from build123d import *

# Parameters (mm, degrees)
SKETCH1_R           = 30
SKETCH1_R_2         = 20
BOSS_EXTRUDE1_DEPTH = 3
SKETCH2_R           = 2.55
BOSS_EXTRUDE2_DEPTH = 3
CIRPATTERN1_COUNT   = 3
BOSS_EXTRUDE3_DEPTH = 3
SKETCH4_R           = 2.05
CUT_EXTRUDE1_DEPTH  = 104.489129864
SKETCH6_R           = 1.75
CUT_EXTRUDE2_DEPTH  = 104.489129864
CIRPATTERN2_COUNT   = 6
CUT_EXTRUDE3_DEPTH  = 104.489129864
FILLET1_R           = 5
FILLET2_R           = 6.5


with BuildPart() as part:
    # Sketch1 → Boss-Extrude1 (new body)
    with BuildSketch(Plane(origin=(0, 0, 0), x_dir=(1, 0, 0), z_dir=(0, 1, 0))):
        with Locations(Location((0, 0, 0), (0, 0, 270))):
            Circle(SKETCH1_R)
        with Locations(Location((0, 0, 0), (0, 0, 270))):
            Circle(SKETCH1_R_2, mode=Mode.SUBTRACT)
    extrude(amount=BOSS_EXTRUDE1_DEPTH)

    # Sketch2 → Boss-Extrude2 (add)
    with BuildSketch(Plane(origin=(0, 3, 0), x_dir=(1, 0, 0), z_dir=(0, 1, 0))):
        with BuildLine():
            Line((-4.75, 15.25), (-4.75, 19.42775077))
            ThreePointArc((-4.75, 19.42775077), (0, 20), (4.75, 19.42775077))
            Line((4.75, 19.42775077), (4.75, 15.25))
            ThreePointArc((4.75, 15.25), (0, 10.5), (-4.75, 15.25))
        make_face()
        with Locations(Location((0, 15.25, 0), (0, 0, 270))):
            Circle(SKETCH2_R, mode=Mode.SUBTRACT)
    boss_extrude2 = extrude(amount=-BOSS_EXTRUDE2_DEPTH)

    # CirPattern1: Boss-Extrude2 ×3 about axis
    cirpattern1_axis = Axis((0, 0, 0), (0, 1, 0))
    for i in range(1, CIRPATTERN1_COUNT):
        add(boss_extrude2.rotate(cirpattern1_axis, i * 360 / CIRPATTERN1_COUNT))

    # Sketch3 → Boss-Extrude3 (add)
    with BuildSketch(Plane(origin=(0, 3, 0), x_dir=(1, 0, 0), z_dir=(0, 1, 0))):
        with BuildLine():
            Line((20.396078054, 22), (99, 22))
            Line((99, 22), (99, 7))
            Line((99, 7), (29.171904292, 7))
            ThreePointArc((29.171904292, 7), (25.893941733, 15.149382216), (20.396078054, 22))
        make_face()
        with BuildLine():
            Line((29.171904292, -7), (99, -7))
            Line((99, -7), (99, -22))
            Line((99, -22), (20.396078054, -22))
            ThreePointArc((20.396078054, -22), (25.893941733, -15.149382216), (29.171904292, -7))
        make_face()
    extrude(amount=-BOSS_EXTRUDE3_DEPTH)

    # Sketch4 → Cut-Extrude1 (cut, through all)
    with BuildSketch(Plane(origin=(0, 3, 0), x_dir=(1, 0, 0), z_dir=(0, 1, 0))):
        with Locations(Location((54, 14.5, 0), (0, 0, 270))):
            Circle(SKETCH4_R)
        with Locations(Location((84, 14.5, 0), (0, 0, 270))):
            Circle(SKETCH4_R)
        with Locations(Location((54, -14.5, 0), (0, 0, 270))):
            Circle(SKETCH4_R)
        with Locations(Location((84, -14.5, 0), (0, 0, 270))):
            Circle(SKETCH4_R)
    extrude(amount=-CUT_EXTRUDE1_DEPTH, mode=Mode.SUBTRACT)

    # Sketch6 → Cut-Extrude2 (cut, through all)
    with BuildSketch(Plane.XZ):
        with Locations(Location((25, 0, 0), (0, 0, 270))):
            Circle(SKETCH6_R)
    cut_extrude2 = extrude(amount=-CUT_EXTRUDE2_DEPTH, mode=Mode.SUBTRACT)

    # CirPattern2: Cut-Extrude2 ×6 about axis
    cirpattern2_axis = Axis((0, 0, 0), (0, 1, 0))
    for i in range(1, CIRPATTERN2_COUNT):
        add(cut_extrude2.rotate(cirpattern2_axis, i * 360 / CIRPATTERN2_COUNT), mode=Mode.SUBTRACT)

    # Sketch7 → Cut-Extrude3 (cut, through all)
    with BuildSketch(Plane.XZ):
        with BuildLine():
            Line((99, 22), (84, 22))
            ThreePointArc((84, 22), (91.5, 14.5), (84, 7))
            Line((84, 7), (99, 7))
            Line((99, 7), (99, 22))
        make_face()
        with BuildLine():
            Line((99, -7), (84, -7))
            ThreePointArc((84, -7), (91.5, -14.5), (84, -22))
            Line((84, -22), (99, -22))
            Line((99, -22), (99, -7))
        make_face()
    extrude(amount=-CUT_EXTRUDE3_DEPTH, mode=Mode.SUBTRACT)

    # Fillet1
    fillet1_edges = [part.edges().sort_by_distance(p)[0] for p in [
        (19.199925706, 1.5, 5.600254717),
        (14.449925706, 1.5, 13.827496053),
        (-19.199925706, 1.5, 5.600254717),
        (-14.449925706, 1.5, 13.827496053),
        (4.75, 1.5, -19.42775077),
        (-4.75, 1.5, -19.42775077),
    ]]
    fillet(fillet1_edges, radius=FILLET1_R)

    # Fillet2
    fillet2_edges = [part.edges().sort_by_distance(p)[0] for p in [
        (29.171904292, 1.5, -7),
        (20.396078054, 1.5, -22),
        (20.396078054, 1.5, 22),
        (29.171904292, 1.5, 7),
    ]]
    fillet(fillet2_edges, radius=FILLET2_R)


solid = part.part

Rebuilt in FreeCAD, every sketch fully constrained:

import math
import FreeCAD as App
import Part
import Sketcher
Q = App.Units.Quantity


def edges_at(feature, points):
    """Names of the edges that pass closest to the given points."""
    edges = feature.Shape.Edges
    near = lambda p: min(range(len(edges)), key=lambda i: edges[i].distToShape(Part.Vertex(*p))[0])
    return sorted({f"Edge{near(p) + 1}" for p in points})

doc = App.newDocument("Part")
body = doc.addObject("PartDesign::Body", "Body")

sketch1 = body.newObject("Sketcher::SketchObject", "Sketch")
sketch1.AttachmentSupport = (doc.getObject("XZ_Plane"), [""])
sketch1.MapMode = "FlatFace"
sketch1.addGeometry([
    Part.Circle(App.Vector(0, 0, 0), App.Vector(0, 0, 1), 30),
    Part.Circle(App.Vector(0, 0, 0), App.Vector(0, 0, 1), 20),
], False)
sketch1.addConstraint([
    Sketcher.Constraint("Coincident", 0, 3, -1, 1),
    Sketcher.Constraint("Coincident", 1, 3, -1, 1),
    Sketcher.Constraint("Diameter", 0, Q("60 mm")),
    Sketcher.Constraint("Diameter", 1, Q("40 mm")),
])
pad1 = body.newObject("PartDesign::Pad", "Pad")
pad1.Profile = sketch1
pad1.Length = 3
pad1.Reversed = True

sketch2 = body.newObject("Sketcher::SketchObject", "Sketch001")
sketch2.AttachmentSupport = (doc.getObject("XZ_Plane"), [""])
sketch2.MapMode = "FlatFace"
sketch2.AttachmentOffset = App.Placement(App.Vector(0, 0, -3), App.Rotation())
sketch2.addGeometry([
    Part.LineSegment(App.Vector(-4.8, -19.4, 0), App.Vector(-4.8, -15.2, 0)),
    Part.ArcOfCircle(Part.Circle(App.Vector(0, -15.2, 0), App.Vector(0, 0, 1), 4.8), math.radians(0), math.radians(180)),
    Part.LineSegment(App.Vector(4.8, -15.2, 0), App.Vector(4.8, -19.4, 0)),
    Part.ArcOfCircle(Part.Circle(App.Vector(0, 0, 0), App.Vector(0, 0, 1), 20), math.radians(-104), math.radians(-76)),
    Part.Circle(App.Vector(0, -15.2, 0), App.Vector(0, 0, 1), 2.5),
], False)
sketch2.addConstraint([
    Sketcher.Constraint("Tangent", 0, 2, 1, 2),
    Sketcher.Constraint("Tangent", 1, 1, 2, 1),
    Sketcher.Constraint("Coincident", 2, 2, 3, 2),
    Sketcher.Constraint("Coincident", 3, 1, 0, 1),
    Sketcher.Constraint("Vertical", 0),
    Sketcher.Constraint("Vertical", 2),
    Sketcher.Constraint("Coincident", 3, 3, -1, 1),
    Sketcher.Constraint("Coincident", 4, 3, 1, 3),
    Sketcher.Constraint("PointOnObject", 1, 3, -2),
    Sketcher.Constraint("Radius", 3, Q("20 mm")),
    Sketcher.Constraint("Diameter", 4, Q("5.1 mm")),
    Sketcher.Constraint("Radius", 1, Q("4.75 mm")),
    Sketcher.Constraint("DistanceY", 1, 3, -1, 1, Q("15.25 mm")),
])
pad2 = body.newObject("PartDesign::Pad", "Pad001")
pad2.Profile = sketch2
pad2.Length = 3
doc.recompute()

polarpattern = body.newObject("PartDesign::PolarPattern", "PolarPattern")
polarpattern.Originals = [pad2]
polarpattern.Axis = (doc.getObject("Y_Axis"), [""])
polarpattern.Angle = 360
polarpattern.Occurrences = 3
body.Tip = polarpattern

sketch3 = body.newObject("Sketcher::SketchObject", "Sketch002")
sketch3.AttachmentSupport = (doc.getObject("XZ_Plane"), [""])
sketch3.MapMode = "FlatFace"
sketch3.AttachmentOffset = App.Placement(App.Vector(0, 0, -3), App.Rotation())
sketch3.addGeometry([
    Part.LineSegment(App.Vector(99, -22, 0), App.Vector(20, -22, 0)),
    Part.ArcOfCircle(Part.Circle(App.Vector(0, 0, 0), App.Vector(0, 0, 1), 30), math.radians(-47), math.radians(-13)),
    Part.LineSegment(App.Vector(29, -7, 0), App.Vector(99, -7, 0)),
    Part.LineSegment(App.Vector(99, -7, 0), App.Vector(99, -22, 0)),
    Part.LineSegment(App.Vector(99, 7, 0), App.Vector(29, 7, 0)),
    Part.ArcOfCircle(Part.Circle(App.Vector(0, 0, 0), App.Vector(0, 0, 1), 30), math.radians(13), math.radians(47)),
    Part.LineSegment(App.Vector(20, 22, 0), App.Vector(99, 22, 0)),
    Part.LineSegment(App.Vector(99, 22, 0), App.Vector(99, 7, 0)),
], False)
sketch3.addConstraint([
    Sketcher.Constraint("Coincident", 0, 2, 1, 1),
    Sketcher.Constraint("Coincident", 1, 2, 2, 1),
    Sketcher.Constraint("Coincident", 2, 2, 3, 1),
    Sketcher.Constraint("Coincident", 3, 2, 0, 1),
    Sketcher.Constraint("Coincident", 4, 2, 5, 1),
    Sketcher.Constraint("Coincident", 5, 2, 6, 1),
    Sketcher.Constraint("Coincident", 6, 2, 7, 1),
    Sketcher.Constraint("Coincident", 7, 2, 4, 1),
    Sketcher.Constraint("Horizontal", 0),
    Sketcher.Constraint("Horizontal", 2),
    Sketcher.Constraint("Vertical", 3),
    Sketcher.Constraint("Horizontal", 4),
    Sketcher.Constraint("Horizontal", 6),
    Sketcher.Constraint("Vertical", 7),
    Sketcher.Constraint("Coincident", 1, 3, -1, 1),
    Sketcher.Constraint("Coincident", 5, 3, -1, 1),
    Sketcher.Constraint("Equal", 1, 5),
    Sketcher.Constraint("Symmetric", 3, 2, 6, 2, -1),
    Sketcher.Constraint("Vertical", 1, 2, 4, 2),
    Sketcher.Constraint("Radius", 1, Q("30 mm")),
    Sketcher.Constraint("DistanceY", 3, 2, 3, 1, Q("15 mm")),
    Sketcher.Constraint("DistanceY", 0, 2, -1, 1, Q("22 mm")),
    Sketcher.Constraint("DistanceX", -1, 1, 2, 2, Q("99 mm")),
])
pad3 = body.newObject("PartDesign::Pad", "Pad002")
pad3.Profile = sketch3
pad3.Length = 3

sketch4 = body.newObject("Sketcher::SketchObject", "Sketch003")
sketch4.AttachmentSupport = (doc.getObject("XZ_Plane"), [""])
sketch4.MapMode = "FlatFace"
sketch4.AttachmentOffset = App.Placement(App.Vector(0, 0, -3), App.Rotation())
sketch4.addGeometry([
    Part.Circle(App.Vector(54, -14.5, 0), App.Vector(0, 0, 1), 2),
    Part.Circle(App.Vector(84, -14.5, 0), App.Vector(0, 0, 1), 2),
    Part.Circle(App.Vector(54, 14.5, 0), App.Vector(0, 0, 1), 2),
    Part.Circle(App.Vector(84, 14.5, 0), App.Vector(0, 0, 1), 2),
], False)
sketch4.addConstraint([
    Sketcher.Constraint("Equal", 0, 1),
    Sketcher.Constraint("Equal", 1, 2),
    Sketcher.Constraint("Equal", 2, 3),
    Sketcher.Constraint("Symmetric", 0, 3, 2, 3, -1),
    Sketcher.Constraint("Symmetric", 1, 3, 3, 3, -1),
    Sketcher.Constraint("Horizontal", 0, 3, 1, 3),
    Sketcher.Constraint("Diameter", 0, Q("4.1 mm")),
    Sketcher.Constraint("DistanceX", -1, 1, 0, 3, Q("54 mm")),
    Sketcher.Constraint("DistanceX", -1, 1, 1, 3, Q("84 mm")),
    Sketcher.Constraint("DistanceY", 0, 3, 2, 3, Q("29 mm")),
])
pocket1 = body.newObject("PartDesign::Pocket", "Pocket")
pocket1.Profile = sketch4
pocket1.Type = "ThroughAll"
pocket1.Reversed = True

sketch5 = body.newObject("Sketcher::SketchObject", "Sketch004")
sketch5.AttachmentSupport = (doc.getObject("XZ_Plane"), [""])
sketch5.MapMode = "FlatFace"
sketch5.addGeometry(Part.Circle(App.Vector(25, 0, 0), App.Vector(0, 0, 1), 1.8), False)
sketch5.addConstraint([
    Sketcher.Constraint("PointOnObject", 0, 3, -1),
    Sketcher.Constraint("Diameter", 0, Q("3.5 mm")),
    Sketcher.Constraint("DistanceX", -1, 1, 0, 3, Q("25 mm")),
])
pocket2 = body.newObject("PartDesign::Pocket", "Pocket001")
pocket2.Profile = sketch5
pocket2.Type = "ThroughAll"
doc.recompute()

polarpattern2 = body.newObject("PartDesign::PolarPattern", "PolarPattern001")
polarpattern2.Originals = [pocket2]
polarpattern2.Axis = (doc.getObject("Y_Axis"), [""])
polarpattern2.Angle = 360
polarpattern2.Occurrences = 6
body.Tip = polarpattern2

sketch6 = body.newObject("Sketcher::SketchObject", "Sketch005")
sketch6.AttachmentSupport = (doc.getObject("XZ_Plane"), [""])
sketch6.MapMode = "FlatFace"
sketch6.addGeometry([
    Part.LineSegment(App.Vector(99, 22, 0), App.Vector(84, 22, 0)),
    Part.ArcOfCircle(Part.Circle(App.Vector(84, 14, 0), App.Vector(0, 0, 1), 8), math.radians(-90), math.radians(90)),
    Part.LineSegment(App.Vector(84, 7, 0), App.Vector(99, 7, 0)),
    Part.LineSegment(App.Vector(99, 7, 0), App.Vector(99, 22, 0)),
    Part.LineSegment(App.Vector(99, -7, 0), App.Vector(84, -7, 0)),
    Part.ArcOfCircle(Part.Circle(App.Vector(84, -14, 0), App.Vector(0, 0, 1), 8), math.radians(-90), math.radians(90)),
    Part.LineSegment(App.Vector(84, -22, 0), App.Vector(99, -22, 0)),
    Part.LineSegment(App.Vector(99, -22, 0), App.Vector(99, -7, 0)),
], False)
sketch6.addConstraint([
    Sketcher.Constraint("Tangent", 0, 2, 1, 2),
    Sketcher.Constraint("Tangent", 1, 1, 2, 1),
    Sketcher.Constraint("Coincident", 2, 2, 3, 1),
    Sketcher.Constraint("Coincident", 3, 2, 0, 1),
    Sketcher.Constraint("Tangent", 4, 2, 5, 2),
    Sketcher.Constraint("Tangent", 5, 1, 6, 1),
    Sketcher.Constraint("Coincident", 6, 2, 7, 1),
    Sketcher.Constraint("Coincident", 7, 2, 4, 1),
    Sketcher.Constraint("Horizontal", 0),
    Sketcher.Constraint("Horizontal", 2),
    Sketcher.Constraint("Vertical", 3),
    Sketcher.Constraint("Horizontal", 4),
    Sketcher.Constraint("Horizontal", 6),
    Sketcher.Constraint("Vertical", 7),
    Sketcher.Constraint("Equal", 1, 5),
    Sketcher.Constraint("Symmetric", 1, 3, 5, 3, -1),
    Sketcher.Constraint("Vertical", 3, 2, 6, 2),
    Sketcher.Constraint("Equal", 6, 3),
    Sketcher.Constraint("Radius", 1, Q("7.5 mm")),
    Sketcher.Constraint("DistanceX", -1, 1, 1, 3, Q("84 mm")),
    Sketcher.Constraint("DistanceY", -1, 1, 0, 2, Q("22 mm")),
])
pocket3 = body.newObject("PartDesign::Pocket", "Pocket002")
pocket3.Profile = sketch6
pocket3.Type = "ThroughAll"
doc.recompute()

fillet = body.newObject("PartDesign::Fillet", "Fillet")
fillet.Base = (pocket3, edges_at(pocket3, [
    (19.2, 1.5, 5.6),
    (14.45, 1.5, 13.827),
    (-19.2, 1.5, 5.6),
    (-14.45, 1.5, 13.827),
    (4.75, 1.5, -19.428),
    (-4.75, 1.5, -19.428),
]))
fillet.Radius = 5
doc.recompute()

fillet2 = body.newObject("PartDesign::Fillet", "Fillet001")
fillet2.Base = (fillet, edges_at(fillet, [
    (29.172, 1.5, -7),
    (20.396, 1.5, -22),
    (20.396, 1.5, 22),
    (29.172, 1.5, 7),
]))
fillet2.Radius = 6.5

doc.recompute()
